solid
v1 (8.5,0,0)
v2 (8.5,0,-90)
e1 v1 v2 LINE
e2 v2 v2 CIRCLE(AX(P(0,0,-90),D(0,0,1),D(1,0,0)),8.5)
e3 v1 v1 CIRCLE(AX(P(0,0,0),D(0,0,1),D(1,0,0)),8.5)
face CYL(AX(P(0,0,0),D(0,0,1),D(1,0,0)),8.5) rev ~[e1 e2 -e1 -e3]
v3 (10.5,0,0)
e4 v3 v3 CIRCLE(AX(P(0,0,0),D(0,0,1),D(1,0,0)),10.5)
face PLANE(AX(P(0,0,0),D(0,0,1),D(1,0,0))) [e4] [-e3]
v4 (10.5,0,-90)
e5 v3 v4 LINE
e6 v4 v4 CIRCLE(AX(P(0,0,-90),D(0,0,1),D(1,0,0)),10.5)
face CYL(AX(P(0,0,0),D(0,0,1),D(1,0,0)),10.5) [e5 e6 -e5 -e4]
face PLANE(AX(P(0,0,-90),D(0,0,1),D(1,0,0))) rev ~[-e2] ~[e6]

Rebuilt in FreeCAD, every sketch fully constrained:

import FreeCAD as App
import Part
import Sketcher

V = App.Vector

doc = App.newDocument("Part")
body = doc.addObject("PartDesign::Body", "Body")

# Sketch on XY plane
sketch1 = body.newObject("Sketcher::SketchObject", "Sketch")
sketch1.AttachmentSupport = (doc.getObject("XY_Plane"), [""])
sketch1.MapMode = "FlatFace"
sketch1.addGeometry([
    Part.Circle(V(0, 0, 0), V(0, 0, 1), 10.5),
    Part.Circle(V(0, 0, 0), V(0, 0, 1), 8.5),
], False)
sketch1.addConstraint([
    Sketcher.Constraint("Coincident", 0, 3, -1, 1),
    Sketcher.Constraint("Coincident", 1, 3, -1, 1),
    Sketcher.Constraint("Diameter", 0, 21.0),
    Sketcher.Constraint("Diameter", 1, 17.0),
])
pad1 = body.newObject("PartDesign::Pad", "Pad")
pad1.Profile = sketch1
pad1.Length = 90
pad1.Reversed = True

doc.recompute()
